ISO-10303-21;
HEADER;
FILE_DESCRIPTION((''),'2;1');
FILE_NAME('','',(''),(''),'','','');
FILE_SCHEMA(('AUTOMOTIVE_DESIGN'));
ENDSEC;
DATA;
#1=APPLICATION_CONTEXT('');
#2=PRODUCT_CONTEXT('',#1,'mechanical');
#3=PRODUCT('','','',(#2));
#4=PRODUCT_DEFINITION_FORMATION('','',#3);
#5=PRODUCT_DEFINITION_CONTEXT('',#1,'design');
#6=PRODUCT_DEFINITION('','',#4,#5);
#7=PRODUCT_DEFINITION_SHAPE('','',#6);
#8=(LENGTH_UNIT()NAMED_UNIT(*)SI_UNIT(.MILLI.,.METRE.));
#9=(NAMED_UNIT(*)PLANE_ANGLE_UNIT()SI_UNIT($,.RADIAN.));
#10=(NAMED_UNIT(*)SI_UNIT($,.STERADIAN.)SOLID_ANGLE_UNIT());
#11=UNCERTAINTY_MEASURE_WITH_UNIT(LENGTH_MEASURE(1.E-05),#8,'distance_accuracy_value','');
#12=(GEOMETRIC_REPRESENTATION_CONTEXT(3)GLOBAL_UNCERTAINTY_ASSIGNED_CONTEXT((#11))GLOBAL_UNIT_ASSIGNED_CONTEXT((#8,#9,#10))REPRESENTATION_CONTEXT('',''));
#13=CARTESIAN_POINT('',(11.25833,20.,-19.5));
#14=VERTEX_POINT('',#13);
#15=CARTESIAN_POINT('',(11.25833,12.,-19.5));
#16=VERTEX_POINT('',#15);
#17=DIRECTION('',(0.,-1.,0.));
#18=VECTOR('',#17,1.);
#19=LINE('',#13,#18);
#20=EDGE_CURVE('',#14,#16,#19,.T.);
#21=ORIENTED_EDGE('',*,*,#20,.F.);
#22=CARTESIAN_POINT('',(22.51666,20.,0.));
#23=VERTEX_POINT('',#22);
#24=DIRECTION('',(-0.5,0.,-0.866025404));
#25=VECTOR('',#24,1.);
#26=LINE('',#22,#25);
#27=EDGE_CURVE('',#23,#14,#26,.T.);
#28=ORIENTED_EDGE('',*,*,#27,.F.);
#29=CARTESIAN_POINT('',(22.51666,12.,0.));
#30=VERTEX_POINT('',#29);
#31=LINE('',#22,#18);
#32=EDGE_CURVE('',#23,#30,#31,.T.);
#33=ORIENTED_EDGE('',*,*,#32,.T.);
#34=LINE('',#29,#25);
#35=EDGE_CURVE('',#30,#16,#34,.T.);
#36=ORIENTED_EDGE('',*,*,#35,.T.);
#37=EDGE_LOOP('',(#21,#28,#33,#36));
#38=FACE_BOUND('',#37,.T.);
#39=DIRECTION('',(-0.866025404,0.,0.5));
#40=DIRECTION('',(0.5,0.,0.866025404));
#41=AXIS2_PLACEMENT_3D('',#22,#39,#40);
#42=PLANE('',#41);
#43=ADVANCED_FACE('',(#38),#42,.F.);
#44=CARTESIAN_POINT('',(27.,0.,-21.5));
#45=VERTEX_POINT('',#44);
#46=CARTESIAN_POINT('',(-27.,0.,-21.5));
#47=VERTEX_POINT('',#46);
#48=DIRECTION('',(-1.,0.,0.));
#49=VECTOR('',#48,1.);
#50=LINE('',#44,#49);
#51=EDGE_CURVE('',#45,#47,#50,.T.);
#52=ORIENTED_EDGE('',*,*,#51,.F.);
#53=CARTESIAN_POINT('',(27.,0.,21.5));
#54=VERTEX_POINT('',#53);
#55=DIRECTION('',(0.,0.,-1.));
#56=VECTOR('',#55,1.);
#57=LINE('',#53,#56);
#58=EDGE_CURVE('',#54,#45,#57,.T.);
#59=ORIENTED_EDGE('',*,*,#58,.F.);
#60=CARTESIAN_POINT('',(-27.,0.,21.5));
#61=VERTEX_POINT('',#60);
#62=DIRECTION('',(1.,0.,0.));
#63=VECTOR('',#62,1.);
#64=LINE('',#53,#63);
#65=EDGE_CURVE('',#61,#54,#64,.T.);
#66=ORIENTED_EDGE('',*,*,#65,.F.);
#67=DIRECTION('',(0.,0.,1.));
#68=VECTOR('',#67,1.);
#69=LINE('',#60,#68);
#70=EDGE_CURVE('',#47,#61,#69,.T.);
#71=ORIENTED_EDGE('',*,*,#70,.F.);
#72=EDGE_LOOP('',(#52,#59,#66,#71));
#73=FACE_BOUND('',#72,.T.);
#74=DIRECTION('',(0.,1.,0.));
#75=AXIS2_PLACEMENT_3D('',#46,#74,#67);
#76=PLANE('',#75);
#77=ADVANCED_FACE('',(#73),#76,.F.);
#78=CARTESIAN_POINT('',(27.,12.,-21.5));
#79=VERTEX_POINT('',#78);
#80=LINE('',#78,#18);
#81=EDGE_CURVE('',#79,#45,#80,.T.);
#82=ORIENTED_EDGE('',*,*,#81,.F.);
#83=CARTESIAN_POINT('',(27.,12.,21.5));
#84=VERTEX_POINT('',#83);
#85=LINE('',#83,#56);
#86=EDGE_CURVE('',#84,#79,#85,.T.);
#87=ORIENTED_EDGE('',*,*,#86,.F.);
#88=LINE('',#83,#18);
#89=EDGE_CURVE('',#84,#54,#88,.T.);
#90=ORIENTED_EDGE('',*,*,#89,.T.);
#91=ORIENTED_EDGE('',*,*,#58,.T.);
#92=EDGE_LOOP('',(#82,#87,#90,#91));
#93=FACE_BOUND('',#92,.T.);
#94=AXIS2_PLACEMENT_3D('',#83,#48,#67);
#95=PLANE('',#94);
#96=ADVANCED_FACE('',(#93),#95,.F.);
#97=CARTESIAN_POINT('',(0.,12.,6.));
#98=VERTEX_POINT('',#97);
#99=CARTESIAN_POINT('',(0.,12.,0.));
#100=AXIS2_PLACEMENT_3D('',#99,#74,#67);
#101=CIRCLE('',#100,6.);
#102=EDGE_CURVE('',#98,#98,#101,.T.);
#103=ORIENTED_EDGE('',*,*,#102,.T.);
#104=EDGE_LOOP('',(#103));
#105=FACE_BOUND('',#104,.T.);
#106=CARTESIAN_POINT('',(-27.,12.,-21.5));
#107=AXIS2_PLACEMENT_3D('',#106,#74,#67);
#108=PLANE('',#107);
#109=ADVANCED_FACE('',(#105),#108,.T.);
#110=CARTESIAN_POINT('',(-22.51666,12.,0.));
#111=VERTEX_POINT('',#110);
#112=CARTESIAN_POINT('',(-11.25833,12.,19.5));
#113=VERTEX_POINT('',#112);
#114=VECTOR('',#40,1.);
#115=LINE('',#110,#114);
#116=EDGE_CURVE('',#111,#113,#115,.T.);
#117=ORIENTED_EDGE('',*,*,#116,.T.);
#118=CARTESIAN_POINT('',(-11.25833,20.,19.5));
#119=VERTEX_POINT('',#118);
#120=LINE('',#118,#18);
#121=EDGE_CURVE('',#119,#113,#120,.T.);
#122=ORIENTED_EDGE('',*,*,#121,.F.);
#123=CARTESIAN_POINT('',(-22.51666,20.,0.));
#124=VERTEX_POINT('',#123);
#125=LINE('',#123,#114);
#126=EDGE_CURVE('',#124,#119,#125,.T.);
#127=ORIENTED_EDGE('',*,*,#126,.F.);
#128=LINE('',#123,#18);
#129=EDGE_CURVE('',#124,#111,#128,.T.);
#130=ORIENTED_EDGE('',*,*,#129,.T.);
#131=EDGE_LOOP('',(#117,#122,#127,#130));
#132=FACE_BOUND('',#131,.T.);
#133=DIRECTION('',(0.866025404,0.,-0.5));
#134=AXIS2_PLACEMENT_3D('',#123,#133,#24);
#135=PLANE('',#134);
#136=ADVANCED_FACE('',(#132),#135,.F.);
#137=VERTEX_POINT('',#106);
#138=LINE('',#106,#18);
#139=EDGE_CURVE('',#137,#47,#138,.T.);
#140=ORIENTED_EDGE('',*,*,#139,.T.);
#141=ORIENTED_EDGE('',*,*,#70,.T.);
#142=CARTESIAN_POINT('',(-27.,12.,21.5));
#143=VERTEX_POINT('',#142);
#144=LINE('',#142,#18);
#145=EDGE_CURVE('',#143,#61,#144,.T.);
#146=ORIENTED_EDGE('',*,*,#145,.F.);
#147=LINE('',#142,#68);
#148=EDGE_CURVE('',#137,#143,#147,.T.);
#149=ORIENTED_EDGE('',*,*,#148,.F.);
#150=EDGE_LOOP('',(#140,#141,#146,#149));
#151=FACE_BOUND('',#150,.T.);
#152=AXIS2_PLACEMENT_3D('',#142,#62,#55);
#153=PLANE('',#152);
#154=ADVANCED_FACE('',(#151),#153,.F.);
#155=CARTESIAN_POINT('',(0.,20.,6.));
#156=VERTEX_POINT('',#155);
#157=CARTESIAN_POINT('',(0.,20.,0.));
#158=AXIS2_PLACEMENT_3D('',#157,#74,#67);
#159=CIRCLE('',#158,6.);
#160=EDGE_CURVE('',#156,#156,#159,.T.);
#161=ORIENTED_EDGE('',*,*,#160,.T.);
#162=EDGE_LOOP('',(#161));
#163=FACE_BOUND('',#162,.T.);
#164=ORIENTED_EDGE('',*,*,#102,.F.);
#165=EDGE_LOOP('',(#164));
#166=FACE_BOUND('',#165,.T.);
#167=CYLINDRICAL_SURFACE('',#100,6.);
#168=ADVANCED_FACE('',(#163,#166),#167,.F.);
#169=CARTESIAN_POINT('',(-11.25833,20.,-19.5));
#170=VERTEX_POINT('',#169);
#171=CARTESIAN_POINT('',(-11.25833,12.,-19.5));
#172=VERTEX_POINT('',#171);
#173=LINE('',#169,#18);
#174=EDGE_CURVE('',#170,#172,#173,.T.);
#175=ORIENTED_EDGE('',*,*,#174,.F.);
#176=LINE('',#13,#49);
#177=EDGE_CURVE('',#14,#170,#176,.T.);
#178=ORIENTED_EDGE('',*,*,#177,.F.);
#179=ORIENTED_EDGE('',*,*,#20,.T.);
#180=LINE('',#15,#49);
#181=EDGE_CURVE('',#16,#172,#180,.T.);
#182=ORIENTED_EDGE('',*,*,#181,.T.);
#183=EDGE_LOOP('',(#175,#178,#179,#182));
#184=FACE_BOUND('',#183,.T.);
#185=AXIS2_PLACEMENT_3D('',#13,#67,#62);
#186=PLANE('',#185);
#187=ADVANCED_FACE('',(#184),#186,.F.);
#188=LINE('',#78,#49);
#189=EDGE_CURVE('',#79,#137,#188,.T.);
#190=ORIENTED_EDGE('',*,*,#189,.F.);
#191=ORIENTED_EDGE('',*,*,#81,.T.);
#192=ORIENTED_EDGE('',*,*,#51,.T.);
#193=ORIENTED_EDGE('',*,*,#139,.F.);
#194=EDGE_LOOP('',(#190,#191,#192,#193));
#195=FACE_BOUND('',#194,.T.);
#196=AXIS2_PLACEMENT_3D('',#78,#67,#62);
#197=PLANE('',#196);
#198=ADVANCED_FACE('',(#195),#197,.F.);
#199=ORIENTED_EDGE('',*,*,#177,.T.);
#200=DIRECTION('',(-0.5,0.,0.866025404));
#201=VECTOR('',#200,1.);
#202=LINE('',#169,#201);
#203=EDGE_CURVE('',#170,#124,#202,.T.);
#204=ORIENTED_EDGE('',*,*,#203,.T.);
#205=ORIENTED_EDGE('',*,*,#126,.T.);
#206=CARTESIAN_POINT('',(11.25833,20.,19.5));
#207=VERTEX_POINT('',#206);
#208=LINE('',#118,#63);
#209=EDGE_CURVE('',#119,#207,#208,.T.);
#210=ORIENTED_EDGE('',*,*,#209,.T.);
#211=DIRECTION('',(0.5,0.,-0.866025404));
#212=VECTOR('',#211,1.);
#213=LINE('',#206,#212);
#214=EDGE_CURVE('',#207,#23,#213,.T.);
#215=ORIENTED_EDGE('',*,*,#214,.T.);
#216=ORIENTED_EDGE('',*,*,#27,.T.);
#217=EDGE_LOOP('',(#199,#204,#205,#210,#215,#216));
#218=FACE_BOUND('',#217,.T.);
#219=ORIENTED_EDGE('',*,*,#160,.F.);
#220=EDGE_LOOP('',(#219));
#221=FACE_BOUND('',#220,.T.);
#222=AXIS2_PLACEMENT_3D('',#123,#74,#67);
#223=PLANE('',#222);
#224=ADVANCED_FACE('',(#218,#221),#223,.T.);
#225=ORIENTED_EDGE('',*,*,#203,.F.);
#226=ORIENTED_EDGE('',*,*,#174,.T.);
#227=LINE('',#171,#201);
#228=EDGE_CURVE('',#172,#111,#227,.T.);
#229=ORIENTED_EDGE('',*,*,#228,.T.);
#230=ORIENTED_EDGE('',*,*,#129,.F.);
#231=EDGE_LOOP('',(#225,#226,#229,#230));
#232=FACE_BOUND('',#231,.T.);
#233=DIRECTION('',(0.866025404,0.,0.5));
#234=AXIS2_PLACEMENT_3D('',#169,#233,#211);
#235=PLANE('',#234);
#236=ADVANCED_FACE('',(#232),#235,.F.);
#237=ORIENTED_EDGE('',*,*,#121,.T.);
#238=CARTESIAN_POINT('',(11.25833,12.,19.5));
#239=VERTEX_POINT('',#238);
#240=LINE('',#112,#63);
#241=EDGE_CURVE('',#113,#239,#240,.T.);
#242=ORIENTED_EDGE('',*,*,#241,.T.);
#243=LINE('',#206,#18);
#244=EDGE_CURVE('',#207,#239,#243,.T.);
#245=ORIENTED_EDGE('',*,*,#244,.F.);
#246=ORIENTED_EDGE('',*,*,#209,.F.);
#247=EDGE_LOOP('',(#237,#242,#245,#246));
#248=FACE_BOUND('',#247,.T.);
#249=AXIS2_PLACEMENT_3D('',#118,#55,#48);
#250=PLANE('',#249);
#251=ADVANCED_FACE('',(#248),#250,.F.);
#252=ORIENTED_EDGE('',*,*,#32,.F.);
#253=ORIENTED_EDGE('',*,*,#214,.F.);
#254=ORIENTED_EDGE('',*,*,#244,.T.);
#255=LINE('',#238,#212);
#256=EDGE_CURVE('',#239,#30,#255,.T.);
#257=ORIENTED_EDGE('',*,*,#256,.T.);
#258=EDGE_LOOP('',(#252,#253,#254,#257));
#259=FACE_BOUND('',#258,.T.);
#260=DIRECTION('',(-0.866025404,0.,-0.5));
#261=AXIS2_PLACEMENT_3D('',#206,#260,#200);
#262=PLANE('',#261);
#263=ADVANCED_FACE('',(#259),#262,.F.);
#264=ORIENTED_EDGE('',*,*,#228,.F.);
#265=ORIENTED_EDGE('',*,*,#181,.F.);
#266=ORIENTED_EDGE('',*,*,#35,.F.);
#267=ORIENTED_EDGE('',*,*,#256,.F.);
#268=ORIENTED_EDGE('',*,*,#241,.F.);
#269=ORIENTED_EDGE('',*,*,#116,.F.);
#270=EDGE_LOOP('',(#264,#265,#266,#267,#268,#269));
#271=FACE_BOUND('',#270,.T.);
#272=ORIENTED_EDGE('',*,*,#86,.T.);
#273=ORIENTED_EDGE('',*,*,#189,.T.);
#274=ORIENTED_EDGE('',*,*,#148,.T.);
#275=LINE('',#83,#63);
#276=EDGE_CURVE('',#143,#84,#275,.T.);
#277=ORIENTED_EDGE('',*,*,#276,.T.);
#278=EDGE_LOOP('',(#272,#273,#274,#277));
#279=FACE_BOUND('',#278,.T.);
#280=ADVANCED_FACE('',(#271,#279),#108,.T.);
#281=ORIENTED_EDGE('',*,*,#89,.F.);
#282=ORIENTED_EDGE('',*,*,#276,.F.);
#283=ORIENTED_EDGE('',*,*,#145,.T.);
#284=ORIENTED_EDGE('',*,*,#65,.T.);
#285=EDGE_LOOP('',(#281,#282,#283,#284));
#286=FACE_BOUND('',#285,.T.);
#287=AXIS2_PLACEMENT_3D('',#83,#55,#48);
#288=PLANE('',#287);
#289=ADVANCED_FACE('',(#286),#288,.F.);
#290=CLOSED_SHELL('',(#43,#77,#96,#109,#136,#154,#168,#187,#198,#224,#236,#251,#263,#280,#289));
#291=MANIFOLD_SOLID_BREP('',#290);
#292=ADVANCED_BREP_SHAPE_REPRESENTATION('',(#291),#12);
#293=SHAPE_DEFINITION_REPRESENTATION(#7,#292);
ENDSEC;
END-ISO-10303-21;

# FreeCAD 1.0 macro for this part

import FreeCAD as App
import Part
import Sketcher
from FreeCAD import Vector
Q = App.Units.Quantity

doc = App.newDocument("Part")
body = doc.addObject("PartDesign::Body", "Body")

sketch1 = body.newObject("Sketcher::SketchObject", "Sketch")
sketch1.AttachmentSupport = (doc.getObject("XZ_Plane"), [""])
sketch1.MapMode = "FlatFace"
sketch1.addGeometry([
    Part.LineSegment(Vector(-27, -22, 0), Vector(-27, 22, 0)),
    Part.LineSegment(Vector(-27, 22, 0), Vector(27, 22, 0)),
    Part.LineSegment(Vector(27, 22, 0), Vector(27, -22, 0)),
    Part.LineSegment(Vector(27, -22, 0), Vector(-27, -22, 0)),
], False)
sketch1.addConstraint([
    Sketcher.Constraint("Coincident", 0, 2, 1, 1),
    Sketcher.Constraint("Coincident", 1, 2, 2, 1),
    Sketcher.Constraint("Coincident", 2, 2, 3, 1),
    Sketcher.Constraint("Coincident", 3, 2, 0, 1),
    Sketcher.Constraint("Vertical", 0),
    Sketcher.Constraint("Horizontal", 1),
    Sketcher.Constraint("Vertical", 2),
    Sketcher.Constraint("Horizontal", 3),
    Sketcher.Constraint("Symmetric", 0, 2, 2, 2, -1, 1),
    Sketcher.Constraint("DistanceX", 1, 1, 1, 2, 54.0),
    Sketcher.Constraint("DistanceY", 0, 1, 0, 2, 43.0),
])
pad1 = body.newObject("PartDesign::Pad", "Pad")
pad1.Profile = sketch1
pad1.Length = 12
pad1.Reversed = True

sketch2 = body.newObject("Sketcher::SketchObject", "Sketch001")
sketch2.AttachmentSupport = (doc.getObject("XZ_Plane"), [""])
sketch2.MapMode = "FlatFace"
sketch2.AttachmentOffset = App.Placement(Vector(0, 0, -12), App.Rotation())
sketch2.addGeometry([
    Part.LineSegment(Vector(-22.5, 0, 0), Vector(-11.3, 19.5, 0)),
    Part.LineSegment(Vector(-11.3, 19.5, 0), Vector(11.3, 19.5, 0)),
    Part.LineSegment(Vector(11.3, 19.5, 0), Vector(22.5, 0, 0)),
    Part.LineSegment(Vector(22.5, 0, 0), Vector(11.3, -19.5, 0)),
    Part.LineSegment(Vector(11.3, -19.5, 0), Vector(-11.3, -19.5, 0)),
    Part.LineSegment(Vector(-11.3, -19.5, 0), Vector(-22.5, 0, 0)),
    Part.Circle(Vector(0, 0, 0), Vector(0, 0, 1), 1.6),
], False)
sketch2.addConstraint([
    Sketcher.Constraint("Coincident", 0, 2, 1, 1),
    Sketcher.Constraint("Coincident", 1, 2, 2, 1),
    Sketcher.Constraint("Coincident", 2, 2, 3, 1),
    Sketcher.Constraint("Coincident", 3, 2, 4, 1),
    Sketcher.Constraint("Coincident", 4, 2, 5, 1),
    Sketcher.Constraint("Coincident", 5, 2, 0, 1),
    Sketcher.Constraint("Horizontal", 1),
    Sketcher.Constraint("Horizontal", 4),
    Sketcher.Constraint("Coincident", 6, 3, -1, 1),
    Sketcher.Constraint("Symmetric", 0, 2, 3, 2, -1, 1),
    Sketcher.Constraint("Symmetric", 2, 2, 5, 2, -1, 1),
    Sketcher.Constraint("PointOnObject", 2, 2, -1),
    Sketcher.Constraint("Parallel", 2, 5),
    Sketcher.Constraint("Vertical", 1, 2, 3, 2),
    Sketcher.Constraint("Diameter", 6, 3.1),
    Sketcher.Constraint("Angle", 0, Q("60 deg")),
    Sketcher.Constraint("DistanceY", 3, 2, 1, 2, 39.0),
    Sketcher.Constraint("DistanceX", 1, 1, 1, 2, 22.51666),
])
pad2 = body.newObject("PartDesign::Pad", "Pad001")
pad2.Profile = sketch2
pad2.Length = 8
pad2.Reversed = True

sketch3 = body.newObject("Sketcher::SketchObject", "Sketch002")
sketch3.AttachmentSupport = (doc.getObject("XZ_Plane"), [""])
sketch3.MapMode = "FlatFace"
sketch3.AttachmentOffset = App.Placement(Vector(0, 0, -20), App.Rotation())
sketch3.addGeometry(Part.Circle(Vector(0, 0, 0), Vector(0, 0, 1), 6), False)
sketch3.addConstraint([
    Sketcher.Constraint("Coincident", 0, 3, -1, 1),
    Sketcher.Constraint("Diameter", 0, 12.0),
])
pocket1 = body.newObject("PartDesign::Pocket", "Pocket")
pocket1.Profile = sketch3
pocket1.Length = 8
pocket1.Reversed = True

doc.recompute()
